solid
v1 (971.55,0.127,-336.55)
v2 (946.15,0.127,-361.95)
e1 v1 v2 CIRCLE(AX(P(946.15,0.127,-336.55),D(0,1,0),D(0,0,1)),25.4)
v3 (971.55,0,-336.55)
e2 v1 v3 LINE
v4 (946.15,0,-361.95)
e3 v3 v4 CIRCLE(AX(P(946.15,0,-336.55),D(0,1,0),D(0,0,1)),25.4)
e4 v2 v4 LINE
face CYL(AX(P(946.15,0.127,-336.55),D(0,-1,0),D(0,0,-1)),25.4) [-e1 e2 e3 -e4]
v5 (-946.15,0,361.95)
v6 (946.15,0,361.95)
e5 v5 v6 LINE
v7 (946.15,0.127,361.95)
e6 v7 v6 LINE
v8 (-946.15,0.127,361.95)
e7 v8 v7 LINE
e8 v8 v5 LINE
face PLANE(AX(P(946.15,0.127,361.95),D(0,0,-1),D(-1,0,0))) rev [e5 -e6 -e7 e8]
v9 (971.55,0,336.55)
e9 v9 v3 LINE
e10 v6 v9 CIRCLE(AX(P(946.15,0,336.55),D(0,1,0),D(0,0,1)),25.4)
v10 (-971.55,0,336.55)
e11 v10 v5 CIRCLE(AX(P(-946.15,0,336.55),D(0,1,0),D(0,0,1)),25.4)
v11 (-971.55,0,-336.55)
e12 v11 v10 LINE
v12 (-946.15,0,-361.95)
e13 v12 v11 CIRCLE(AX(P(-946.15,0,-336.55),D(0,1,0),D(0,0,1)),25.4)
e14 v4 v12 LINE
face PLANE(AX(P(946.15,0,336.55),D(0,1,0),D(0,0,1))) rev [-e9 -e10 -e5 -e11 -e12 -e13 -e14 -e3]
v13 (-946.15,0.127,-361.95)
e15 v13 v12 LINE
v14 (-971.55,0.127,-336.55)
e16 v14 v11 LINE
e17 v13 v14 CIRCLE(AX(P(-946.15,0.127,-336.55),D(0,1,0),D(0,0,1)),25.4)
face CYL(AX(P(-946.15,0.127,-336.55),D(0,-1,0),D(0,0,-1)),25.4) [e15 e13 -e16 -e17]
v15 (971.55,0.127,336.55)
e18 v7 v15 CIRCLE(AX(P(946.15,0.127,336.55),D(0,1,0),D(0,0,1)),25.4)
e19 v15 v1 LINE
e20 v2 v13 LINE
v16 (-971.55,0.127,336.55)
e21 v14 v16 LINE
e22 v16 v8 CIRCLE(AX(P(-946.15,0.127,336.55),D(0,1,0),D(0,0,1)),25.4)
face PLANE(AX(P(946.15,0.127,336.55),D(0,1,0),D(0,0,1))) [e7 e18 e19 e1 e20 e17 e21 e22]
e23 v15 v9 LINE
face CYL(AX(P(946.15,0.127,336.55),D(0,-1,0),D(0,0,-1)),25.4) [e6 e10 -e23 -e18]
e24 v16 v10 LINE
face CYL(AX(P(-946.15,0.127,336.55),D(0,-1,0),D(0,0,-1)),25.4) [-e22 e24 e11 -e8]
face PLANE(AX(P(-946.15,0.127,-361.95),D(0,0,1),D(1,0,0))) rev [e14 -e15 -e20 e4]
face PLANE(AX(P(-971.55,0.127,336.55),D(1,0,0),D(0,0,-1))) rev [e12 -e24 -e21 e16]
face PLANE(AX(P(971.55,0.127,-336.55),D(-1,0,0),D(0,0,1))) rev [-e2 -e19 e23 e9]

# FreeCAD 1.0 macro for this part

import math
import FreeCAD as App
import Part
import Sketcher
from FreeCAD import Vector
Q = App.Units.Quantity

doc = App.newDocument("Part")
params = doc.addObject("Spreadsheet::Sheet", "Params")
for row, (alias, value) in enumerate([
    ("sketch1_radius", "1 in"),
    ("sketch1_width", "74.5 in"),
    ("sketch1_height", "26.5 in"),
    ("pad1_length", "0.005 in"),
], start=1):
    params.set(f"A{row}", alias)
    params.set(f"B{row}", "=" + value)
    params.setAlias(f"B{row}", alias)

body = doc.addObject("PartDesign::Body", "Body")

sketch1 = doc.addObject("Sketcher::SketchObject", "Sketch")
body.addObject(sketch1)
sketch1.AttachmentSupport = (doc.XZ_Plane, [""])
sketch1.MapMode = "FlatFace"
sketch1.addGeometry(Part.LineSegment(Vector(-946, 362, 0), Vector(946, 362, 0)), False)
sketch1.addGeometry(Part.ArcOfCircle(Part.Circle(Vector(946, 337, 0), Vector(0, 0, 1), 25), math.radians(0), math.radians(90)), False)
sketch1.addGeometry(Part.LineSegment(Vector(972, 337, 0), Vector(972, -337, 0)), False)
sketch1.addGeometry(Part.ArcOfCircle(Part.Circle(Vector(946, -337, 0), Vector(0, 0, 1), 25), math.radians(-90), math.radians(0)), False)
sketch1.addGeometry(Part.LineSegment(Vector(946, -362, 0), Vector(-946, -362, 0)), False)
sketch1.addGeometry(Part.ArcOfCircle(Part.Circle(Vector(-946, -337, 0), Vector(0, 0, 1), 25), math.radians(180), math.radians(270)), False)
sketch1.addGeometry(Part.LineSegment(Vector(-972, -337, 0), Vector(-972, 337, 0)), False)
sketch1.addGeometry(Part.ArcOfCircle(Part.Circle(Vector(-946, 337, 0), Vector(0, 0, 1), 25), math.radians(90), math.radians(180)), False)
sketch1.addConstraint(Sketcher.Constraint("Tangent", 0, 2, 1, 2))
sketch1.addConstraint(Sketcher.Constraint("Tangent", 1, 1, 2, 1))
sketch1.addConstraint(Sketcher.Constraint("Tangent", 2, 2, 3, 2))
sketch1.addConstraint(Sketcher.Constraint("Tangent", 3, 1, 4, 1))
sketch1.addConstraint(Sketcher.Constraint("Tangent", 4, 2, 5, 2))
sketch1.addConstraint(Sketcher.Constraint("Tangent", 5, 1, 6, 1))
sketch1.addConstraint(Sketcher.Constraint("Tangent", 6, 2, 7, 2))
sketch1.addConstraint(Sketcher.Constraint("Tangent", 7, 1, 0, 1))
sketch1.addConstraint(Sketcher.Constraint("Horizontal", 0))
sketch1.addConstraint(Sketcher.Constraint("Vertical", 2))
sketch1.addConstraint(Sketcher.Constraint("Horizontal", 4))
sketch1.addConstraint(Sketcher.Constraint("Vertical", 6))
sketch1.addConstraint(Sketcher.Constraint("Equal", 1, 3))
sketch1.addConstraint(Sketcher.Constraint("Equal", 3, 5))
sketch1.addConstraint(Sketcher.Constraint("Equal", 5, 7))
sketch1.addConstraint(Sketcher.Constraint("Symmetric", 1, 3, 5, 3, -1, 1))
sketch1.addConstraint(Sketcher.Constraint("Radius", 1, Q("1 in")))
sketch1.addConstraint(Sketcher.Constraint("DistanceX", 0, 1, 0, 2, Q("74.5 in")))
sketch1.addConstraint(Sketcher.Constraint("DistanceY", 2, 2, 2, 1, Q("26.5 in")))
sketch1.setExpression("Constraints[16]", "Params.sketch1_radius")
sketch1.setExpression("Constraints[17]", "Params.sketch1_width")
sketch1.setExpression("Constraints[18]", "Params.sketch1_height")
pad1 = doc.addObject("PartDesign::Pad", "Pad")
body.addObject(pad1)
pad1.Profile = sketch1
pad1.setExpression("Length", "Params.pad1_length")
pad1.Reversed = True

doc.recompute()
